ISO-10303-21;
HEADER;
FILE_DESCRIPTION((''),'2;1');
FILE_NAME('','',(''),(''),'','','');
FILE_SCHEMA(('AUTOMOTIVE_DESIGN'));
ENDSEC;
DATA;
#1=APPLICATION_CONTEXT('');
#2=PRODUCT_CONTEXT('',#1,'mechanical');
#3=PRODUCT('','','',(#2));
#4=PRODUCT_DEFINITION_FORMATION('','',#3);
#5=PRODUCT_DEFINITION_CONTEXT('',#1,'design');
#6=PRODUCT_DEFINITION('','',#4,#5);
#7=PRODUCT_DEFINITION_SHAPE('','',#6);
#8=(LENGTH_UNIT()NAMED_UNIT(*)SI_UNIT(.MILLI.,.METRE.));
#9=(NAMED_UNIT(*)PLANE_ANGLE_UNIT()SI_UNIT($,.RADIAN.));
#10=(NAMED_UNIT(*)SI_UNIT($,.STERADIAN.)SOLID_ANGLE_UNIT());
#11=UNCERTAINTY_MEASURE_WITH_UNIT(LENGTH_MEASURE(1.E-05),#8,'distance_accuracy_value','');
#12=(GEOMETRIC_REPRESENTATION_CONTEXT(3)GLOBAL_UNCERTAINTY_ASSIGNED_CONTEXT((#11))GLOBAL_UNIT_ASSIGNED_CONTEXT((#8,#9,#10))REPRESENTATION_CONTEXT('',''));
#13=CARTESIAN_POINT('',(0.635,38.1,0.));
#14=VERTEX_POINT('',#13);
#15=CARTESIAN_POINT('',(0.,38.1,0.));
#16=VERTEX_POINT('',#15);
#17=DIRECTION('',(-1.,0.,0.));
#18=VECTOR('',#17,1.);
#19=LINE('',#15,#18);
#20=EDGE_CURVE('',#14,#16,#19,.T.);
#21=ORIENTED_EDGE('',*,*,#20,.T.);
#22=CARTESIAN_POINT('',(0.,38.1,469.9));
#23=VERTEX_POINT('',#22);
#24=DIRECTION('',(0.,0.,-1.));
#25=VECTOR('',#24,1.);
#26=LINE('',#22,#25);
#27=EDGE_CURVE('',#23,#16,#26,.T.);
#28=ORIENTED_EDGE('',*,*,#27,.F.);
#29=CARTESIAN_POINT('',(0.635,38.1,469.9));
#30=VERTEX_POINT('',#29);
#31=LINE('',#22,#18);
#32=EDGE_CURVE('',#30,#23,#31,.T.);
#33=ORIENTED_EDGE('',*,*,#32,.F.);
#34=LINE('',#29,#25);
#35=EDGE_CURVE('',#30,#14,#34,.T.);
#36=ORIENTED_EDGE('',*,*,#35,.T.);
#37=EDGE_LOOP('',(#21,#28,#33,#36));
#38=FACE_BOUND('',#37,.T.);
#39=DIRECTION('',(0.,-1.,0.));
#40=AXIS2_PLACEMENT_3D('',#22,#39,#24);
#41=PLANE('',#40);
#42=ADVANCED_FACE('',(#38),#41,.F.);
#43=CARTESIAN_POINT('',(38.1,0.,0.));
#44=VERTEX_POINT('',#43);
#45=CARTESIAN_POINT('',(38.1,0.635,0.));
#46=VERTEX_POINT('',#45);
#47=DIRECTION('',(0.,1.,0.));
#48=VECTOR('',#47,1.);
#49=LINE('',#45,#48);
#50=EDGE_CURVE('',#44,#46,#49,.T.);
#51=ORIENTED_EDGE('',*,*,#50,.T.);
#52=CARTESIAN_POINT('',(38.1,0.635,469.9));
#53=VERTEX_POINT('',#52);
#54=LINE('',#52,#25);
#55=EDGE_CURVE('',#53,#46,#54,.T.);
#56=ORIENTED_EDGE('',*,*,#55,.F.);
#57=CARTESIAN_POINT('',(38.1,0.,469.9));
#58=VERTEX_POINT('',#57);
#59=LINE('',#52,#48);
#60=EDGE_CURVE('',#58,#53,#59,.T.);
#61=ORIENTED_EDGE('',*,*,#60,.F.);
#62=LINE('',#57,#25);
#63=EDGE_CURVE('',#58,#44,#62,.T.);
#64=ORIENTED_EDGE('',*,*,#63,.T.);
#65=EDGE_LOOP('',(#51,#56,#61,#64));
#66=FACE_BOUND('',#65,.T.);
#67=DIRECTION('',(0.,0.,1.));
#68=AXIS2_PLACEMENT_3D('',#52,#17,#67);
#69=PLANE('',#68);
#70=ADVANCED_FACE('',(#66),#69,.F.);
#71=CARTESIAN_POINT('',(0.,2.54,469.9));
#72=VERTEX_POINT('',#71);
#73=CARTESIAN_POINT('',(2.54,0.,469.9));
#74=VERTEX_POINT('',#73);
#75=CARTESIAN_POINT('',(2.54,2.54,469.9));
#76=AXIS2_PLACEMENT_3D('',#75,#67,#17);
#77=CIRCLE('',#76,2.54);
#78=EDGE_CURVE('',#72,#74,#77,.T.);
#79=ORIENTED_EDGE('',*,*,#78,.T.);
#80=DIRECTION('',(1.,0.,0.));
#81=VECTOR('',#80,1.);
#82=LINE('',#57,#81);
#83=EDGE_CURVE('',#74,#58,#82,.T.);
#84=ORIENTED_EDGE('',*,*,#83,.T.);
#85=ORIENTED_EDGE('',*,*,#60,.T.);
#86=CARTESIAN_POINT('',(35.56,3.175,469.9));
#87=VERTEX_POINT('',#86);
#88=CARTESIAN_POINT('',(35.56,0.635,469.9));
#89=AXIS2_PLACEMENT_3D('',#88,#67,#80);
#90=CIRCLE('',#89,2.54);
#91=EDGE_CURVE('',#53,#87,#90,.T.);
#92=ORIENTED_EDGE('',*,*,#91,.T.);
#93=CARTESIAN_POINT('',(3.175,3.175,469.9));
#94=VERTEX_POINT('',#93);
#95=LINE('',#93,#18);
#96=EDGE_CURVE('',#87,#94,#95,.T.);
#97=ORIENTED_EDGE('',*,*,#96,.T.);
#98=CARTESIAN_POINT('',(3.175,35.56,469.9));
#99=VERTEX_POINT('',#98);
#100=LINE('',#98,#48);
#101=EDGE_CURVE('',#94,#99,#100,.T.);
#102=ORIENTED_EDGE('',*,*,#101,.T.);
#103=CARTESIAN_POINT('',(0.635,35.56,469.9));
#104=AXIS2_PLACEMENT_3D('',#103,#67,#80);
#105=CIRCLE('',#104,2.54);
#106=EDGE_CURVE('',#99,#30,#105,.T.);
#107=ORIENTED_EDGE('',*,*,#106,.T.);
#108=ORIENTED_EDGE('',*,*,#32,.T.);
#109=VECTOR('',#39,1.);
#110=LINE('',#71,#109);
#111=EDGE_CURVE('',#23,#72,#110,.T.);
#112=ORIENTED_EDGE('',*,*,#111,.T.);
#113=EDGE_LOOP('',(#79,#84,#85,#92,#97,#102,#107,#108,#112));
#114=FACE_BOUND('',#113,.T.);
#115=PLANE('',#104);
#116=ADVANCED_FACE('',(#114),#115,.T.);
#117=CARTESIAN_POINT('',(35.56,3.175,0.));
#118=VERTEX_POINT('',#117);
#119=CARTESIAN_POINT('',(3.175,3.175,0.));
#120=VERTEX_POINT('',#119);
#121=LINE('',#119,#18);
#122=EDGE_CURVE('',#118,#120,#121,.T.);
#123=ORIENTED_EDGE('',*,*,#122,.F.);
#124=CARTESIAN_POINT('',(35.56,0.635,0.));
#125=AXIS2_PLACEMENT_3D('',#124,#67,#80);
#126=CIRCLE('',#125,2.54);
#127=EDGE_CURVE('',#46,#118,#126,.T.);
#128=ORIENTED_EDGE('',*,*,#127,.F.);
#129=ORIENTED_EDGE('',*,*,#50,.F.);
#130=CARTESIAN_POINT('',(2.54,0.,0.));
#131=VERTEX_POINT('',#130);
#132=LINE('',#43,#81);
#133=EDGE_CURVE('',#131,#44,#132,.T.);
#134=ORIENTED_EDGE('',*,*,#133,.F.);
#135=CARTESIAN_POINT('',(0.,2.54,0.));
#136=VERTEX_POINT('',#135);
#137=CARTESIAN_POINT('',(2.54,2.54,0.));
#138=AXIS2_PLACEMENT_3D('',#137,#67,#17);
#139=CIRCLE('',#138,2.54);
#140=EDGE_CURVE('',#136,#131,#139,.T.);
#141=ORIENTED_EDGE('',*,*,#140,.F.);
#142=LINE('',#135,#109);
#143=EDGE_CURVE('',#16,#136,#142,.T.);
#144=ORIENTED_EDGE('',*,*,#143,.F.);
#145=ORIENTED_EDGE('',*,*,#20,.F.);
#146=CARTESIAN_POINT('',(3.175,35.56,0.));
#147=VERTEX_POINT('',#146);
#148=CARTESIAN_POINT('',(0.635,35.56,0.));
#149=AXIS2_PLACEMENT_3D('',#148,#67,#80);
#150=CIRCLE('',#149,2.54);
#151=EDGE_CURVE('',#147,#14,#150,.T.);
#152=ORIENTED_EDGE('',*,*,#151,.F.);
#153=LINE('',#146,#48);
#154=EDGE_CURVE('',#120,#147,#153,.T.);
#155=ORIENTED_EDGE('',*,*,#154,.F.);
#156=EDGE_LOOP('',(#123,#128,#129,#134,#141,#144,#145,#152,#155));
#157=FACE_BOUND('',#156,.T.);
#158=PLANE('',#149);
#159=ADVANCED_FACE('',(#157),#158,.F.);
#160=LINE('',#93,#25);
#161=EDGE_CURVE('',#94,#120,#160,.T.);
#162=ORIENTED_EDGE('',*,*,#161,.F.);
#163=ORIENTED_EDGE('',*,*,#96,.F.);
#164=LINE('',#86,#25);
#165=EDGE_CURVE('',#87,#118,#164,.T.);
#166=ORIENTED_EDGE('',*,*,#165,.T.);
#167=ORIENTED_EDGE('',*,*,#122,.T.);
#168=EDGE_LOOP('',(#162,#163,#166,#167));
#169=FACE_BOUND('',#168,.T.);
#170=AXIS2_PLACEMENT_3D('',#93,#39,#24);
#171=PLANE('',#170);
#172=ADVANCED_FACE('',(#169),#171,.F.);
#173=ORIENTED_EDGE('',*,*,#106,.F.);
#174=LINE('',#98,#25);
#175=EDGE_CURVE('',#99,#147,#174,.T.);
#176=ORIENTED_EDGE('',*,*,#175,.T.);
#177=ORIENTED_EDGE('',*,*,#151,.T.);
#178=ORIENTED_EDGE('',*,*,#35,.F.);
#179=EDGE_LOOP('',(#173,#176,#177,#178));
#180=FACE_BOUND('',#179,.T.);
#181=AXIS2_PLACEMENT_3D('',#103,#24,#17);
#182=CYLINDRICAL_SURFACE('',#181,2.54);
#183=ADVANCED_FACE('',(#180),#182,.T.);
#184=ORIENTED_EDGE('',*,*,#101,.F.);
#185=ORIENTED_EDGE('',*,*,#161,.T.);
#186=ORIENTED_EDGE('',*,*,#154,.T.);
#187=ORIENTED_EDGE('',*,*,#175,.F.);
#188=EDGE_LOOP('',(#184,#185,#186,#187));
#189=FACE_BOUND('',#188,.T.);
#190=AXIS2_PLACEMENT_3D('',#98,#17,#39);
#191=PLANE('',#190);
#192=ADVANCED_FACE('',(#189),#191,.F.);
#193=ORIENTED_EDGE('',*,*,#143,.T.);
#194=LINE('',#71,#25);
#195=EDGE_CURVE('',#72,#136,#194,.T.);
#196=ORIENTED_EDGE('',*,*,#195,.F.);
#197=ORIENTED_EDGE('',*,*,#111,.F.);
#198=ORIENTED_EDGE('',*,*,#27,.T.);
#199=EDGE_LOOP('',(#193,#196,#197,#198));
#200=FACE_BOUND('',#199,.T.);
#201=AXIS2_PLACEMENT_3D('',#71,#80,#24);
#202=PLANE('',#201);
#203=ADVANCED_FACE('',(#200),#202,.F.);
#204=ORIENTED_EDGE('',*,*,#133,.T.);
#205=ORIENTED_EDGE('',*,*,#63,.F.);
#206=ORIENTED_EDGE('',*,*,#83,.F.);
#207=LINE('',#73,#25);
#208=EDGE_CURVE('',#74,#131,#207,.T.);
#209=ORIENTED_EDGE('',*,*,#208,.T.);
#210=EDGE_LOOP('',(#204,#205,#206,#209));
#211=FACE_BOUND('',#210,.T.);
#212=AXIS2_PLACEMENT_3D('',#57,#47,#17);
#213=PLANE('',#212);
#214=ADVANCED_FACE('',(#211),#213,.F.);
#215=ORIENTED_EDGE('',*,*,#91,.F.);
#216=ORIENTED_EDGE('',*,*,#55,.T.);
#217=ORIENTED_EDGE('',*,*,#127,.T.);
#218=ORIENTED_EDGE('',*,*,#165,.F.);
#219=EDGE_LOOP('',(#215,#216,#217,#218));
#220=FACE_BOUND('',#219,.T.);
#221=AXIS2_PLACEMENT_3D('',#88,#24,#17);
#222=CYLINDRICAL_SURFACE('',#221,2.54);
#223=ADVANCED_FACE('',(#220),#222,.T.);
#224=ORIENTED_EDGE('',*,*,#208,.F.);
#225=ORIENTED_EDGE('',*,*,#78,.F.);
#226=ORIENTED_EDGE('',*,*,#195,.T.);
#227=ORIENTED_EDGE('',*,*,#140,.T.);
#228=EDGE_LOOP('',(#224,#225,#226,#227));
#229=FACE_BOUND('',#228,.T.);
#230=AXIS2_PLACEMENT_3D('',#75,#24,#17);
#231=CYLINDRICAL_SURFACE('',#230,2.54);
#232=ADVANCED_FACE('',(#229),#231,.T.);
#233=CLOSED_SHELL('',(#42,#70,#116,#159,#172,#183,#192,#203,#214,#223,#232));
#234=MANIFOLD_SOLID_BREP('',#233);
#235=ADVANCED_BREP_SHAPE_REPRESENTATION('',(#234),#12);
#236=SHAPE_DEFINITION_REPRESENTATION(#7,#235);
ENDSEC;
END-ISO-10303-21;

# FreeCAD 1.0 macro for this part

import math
import FreeCAD as App
import Part
import Sketcher
Q = App.Units.Quantity

doc = App.newDocument("Part")
params = doc.addObject("Spreadsheet::Sheet", "Params")
for row, (alias, value) in enumerate([
    ("sketch1_radius", "0.1 in"),
    ("sketch1_width", "1.4 in"),
    ("sketch1_width2", "1.275 in"),
    ("pad1_length", "18.5 in"),
], start=1):
    params.set(f"A{row}", alias)
    params.set(f"B{row}", "=" + value)
    params.setAlias(f"B{row}", alias)

body = doc.addObject("PartDesign::Body", "Body")

sketch1 = body.newObject("Sketcher::SketchObject", "Sketch")
sketch1.AttachmentSupport = (doc.getObject("XY_Plane"), [""])
sketch1.MapMode = "FlatFace"
sketch1.addGeometry([
    Part.LineSegment(App.Vector(0, 38.1, 0), App.Vector(0, 2.5, 0)),
    Part.ArcOfCircle(Part.Circle(App.Vector(2.5, 2.5, 0), App.Vector(0, 0, 1), 2.5), math.radians(-180), math.radians(-90)),
    Part.LineSegment(App.Vector(2.5, 0, 0), App.Vector(38.1, 0, 0)),
    Part.LineSegment(App.Vector(38.1, 0, 0), App.Vector(38.1, 0.6, 0)),
    Part.ArcOfCircle(Part.Circle(App.Vector(35.6, 0.6, 0), App.Vector(0, 0, 1), 2.5), math.radians(0), math.radians(90)),
    Part.LineSegment(App.Vector(35.6, 3.2, 0), App.Vector(3.2, 3.2, 0)),
    Part.LineSegment(App.Vector(3.2, 3.2, 0), App.Vector(3.2, 35.6, 0)),
    Part.ArcOfCircle(Part.Circle(App.Vector(0.6, 35.6, 0), App.Vector(0, 0, 1), 2.5), math.radians(0), math.radians(90)),
    Part.LineSegment(App.Vector(0.6, 38.1, 0), App.Vector(0, 38.1, 0)),
], False)
sketch1.addConstraint([
    Sketcher.Constraint("Tangent", 0, 2, 1, 1),
    Sketcher.Constraint("Tangent", 1, 2, 2, 1),
    Sketcher.Constraint("Coincident", 2, 2, 3, 1),
    Sketcher.Constraint("Tangent", 3, 2, 4, 1),
    Sketcher.Constraint("Tangent", 4, 2, 5, 1),
    Sketcher.Constraint("Coincident", 5, 2, 6, 1),
    Sketcher.Constraint("Tangent", 6, 2, 7, 1),
    Sketcher.Constraint("Tangent", 7, 2, 8, 1),
    Sketcher.Constraint("Coincident", 8, 2, 0, 1),
    Sketcher.Constraint("Vertical", 0),
    Sketcher.Constraint("Horizontal", 2),
    Sketcher.Constraint("Vertical", 3),
    Sketcher.Constraint("Horizontal", 5),
    Sketcher.Constraint("Vertical", 6),
    Sketcher.Constraint("Horizontal", 8),
    Sketcher.Constraint("Equal", 1, 4),
    Sketcher.Constraint("Equal", 4, 7),
    Sketcher.Constraint("PointOnObject", 0, 2, -2),
    Sketcher.Constraint("PointOnObject", 1, 2, -1),
    Sketcher.Constraint("Equal", 2, 0),
    Sketcher.Constraint("Equal", 8, 3),
    Sketcher.Constraint("Radius", 1, Q("0.1 in")),
    Sketcher.Constraint("DistanceX", 2, 1, 2, 2, Q("1.4 in")),
    Sketcher.Constraint("DistanceX", 5, 2, 5, 1, Q("1.275 in")),
])
sketch1.setExpression("Constraints[21]", "Params.sketch1_radius")
sketch1.setExpression("Constraints[22]", "Params.sketch1_width")
sketch1.setExpression("Constraints[23]", "Params.sketch1_width2")
pad1 = body.newObject("PartDesign::Pad", "Pad")
pad1.Profile = sketch1
pad1.setExpression("Length", "Params.pad1_length")

doc.recompute()
